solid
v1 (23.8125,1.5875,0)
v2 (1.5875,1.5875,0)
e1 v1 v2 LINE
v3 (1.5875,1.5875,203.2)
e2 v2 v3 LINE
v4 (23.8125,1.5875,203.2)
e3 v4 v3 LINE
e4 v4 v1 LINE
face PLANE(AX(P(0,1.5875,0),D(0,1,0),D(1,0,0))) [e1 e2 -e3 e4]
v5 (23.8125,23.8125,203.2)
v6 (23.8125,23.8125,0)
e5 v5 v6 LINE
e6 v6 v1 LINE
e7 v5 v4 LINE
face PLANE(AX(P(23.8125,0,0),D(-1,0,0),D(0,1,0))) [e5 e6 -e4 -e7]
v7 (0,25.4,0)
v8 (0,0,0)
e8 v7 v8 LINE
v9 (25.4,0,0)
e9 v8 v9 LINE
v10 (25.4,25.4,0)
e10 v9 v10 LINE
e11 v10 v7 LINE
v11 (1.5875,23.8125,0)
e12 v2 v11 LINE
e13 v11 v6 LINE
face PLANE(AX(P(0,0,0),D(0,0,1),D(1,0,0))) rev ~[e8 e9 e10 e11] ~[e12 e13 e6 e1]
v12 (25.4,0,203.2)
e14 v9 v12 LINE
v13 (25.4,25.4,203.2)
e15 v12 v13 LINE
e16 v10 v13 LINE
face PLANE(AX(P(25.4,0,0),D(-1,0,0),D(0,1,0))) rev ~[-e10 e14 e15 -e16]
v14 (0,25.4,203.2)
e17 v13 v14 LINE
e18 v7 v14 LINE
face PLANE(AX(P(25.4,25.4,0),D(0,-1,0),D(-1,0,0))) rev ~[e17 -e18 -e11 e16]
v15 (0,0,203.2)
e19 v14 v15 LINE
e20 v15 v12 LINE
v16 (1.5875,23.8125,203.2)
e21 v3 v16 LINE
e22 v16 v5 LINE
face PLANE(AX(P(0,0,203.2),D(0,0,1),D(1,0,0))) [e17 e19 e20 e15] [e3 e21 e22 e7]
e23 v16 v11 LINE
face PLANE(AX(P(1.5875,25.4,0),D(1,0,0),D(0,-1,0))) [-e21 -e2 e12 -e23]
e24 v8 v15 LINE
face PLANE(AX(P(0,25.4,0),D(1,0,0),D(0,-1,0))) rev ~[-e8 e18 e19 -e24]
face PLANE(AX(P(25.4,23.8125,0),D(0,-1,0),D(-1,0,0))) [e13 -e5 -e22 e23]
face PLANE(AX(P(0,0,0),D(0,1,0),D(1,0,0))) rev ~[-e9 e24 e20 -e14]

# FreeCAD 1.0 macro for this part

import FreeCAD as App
import Part
import Sketcher
Q = App.Units.Quantity


def faces_at(feature, points):
    """Names of the faces that lie closest to the given points."""
    faces = feature.Shape.Faces
    near = lambda p: min(range(len(faces)), key=lambda i: faces[i].distToShape(Part.Vertex(*p))[0])
    return sorted({f"Face{near(p) + 1}" for p in points})


def add_polygon(sketch, points):
    """Adds a closed chain of lines whose ends are joined by coincident constraints."""
    first, n = sketch.GeometryCount, len(points)
    for a, b in zip(points, points[1:] + points[:1]):
        sketch.addGeometry(Part.LineSegment(App.Vector(*a, 0), App.Vector(*b, 0)), False)
    for i in range(n):
        sketch.addConstraint(Sketcher.Constraint("Coincident", first + i, 2, first + (i + 1) % n, 1))

doc = App.newDocument("Part")
body = doc.addObject("PartDesign::Body", "Body")

sketch1 = body.newObject("Sketcher::SketchObject", "Sketch")
sketch1.AttachmentSupport = (doc.getObject("XY_Plane"), [""])
sketch1.MapMode = "FlatFace"
add_polygon(sketch1, [(0, 25.4), (0, 0), (25.4, 0), (25.4, 25.4)])
sketch1.addConstraint(Sketcher.Constraint("Vertical", 0))
sketch1.addConstraint(Sketcher.Constraint("Horizontal", 1))
sketch1.addConstraint(Sketcher.Constraint("Vertical", 2))
sketch1.addConstraint(Sketcher.Constraint("Horizontal", 3))
sketch1.addConstraint(Sketcher.Constraint("Coincident", 0, 2, -1, 1))
sketch1.addConstraint(Sketcher.Constraint("Equal", 3, 0))
sketch1.addConstraint(Sketcher.Constraint("DistanceX", 1, 1, 1, 2, Q("1 in")))
pad1 = body.newObject("PartDesign::Pad", "Pad")
pad1.Profile = sketch1
pad1.Length = Q("8 in")
doc.recompute()

thickness = body.newObject("PartDesign::Thickness", "Thickness")
thickness.Base = (pad1, faces_at(pad1, [(16.933, 8.467, 0), (16.933, 8.467, 203.2)]))
thickness.Value = Q("0.0625 in")
thickness.Reversed = True
thickness.Join = "Intersection"

doc.recompute()
